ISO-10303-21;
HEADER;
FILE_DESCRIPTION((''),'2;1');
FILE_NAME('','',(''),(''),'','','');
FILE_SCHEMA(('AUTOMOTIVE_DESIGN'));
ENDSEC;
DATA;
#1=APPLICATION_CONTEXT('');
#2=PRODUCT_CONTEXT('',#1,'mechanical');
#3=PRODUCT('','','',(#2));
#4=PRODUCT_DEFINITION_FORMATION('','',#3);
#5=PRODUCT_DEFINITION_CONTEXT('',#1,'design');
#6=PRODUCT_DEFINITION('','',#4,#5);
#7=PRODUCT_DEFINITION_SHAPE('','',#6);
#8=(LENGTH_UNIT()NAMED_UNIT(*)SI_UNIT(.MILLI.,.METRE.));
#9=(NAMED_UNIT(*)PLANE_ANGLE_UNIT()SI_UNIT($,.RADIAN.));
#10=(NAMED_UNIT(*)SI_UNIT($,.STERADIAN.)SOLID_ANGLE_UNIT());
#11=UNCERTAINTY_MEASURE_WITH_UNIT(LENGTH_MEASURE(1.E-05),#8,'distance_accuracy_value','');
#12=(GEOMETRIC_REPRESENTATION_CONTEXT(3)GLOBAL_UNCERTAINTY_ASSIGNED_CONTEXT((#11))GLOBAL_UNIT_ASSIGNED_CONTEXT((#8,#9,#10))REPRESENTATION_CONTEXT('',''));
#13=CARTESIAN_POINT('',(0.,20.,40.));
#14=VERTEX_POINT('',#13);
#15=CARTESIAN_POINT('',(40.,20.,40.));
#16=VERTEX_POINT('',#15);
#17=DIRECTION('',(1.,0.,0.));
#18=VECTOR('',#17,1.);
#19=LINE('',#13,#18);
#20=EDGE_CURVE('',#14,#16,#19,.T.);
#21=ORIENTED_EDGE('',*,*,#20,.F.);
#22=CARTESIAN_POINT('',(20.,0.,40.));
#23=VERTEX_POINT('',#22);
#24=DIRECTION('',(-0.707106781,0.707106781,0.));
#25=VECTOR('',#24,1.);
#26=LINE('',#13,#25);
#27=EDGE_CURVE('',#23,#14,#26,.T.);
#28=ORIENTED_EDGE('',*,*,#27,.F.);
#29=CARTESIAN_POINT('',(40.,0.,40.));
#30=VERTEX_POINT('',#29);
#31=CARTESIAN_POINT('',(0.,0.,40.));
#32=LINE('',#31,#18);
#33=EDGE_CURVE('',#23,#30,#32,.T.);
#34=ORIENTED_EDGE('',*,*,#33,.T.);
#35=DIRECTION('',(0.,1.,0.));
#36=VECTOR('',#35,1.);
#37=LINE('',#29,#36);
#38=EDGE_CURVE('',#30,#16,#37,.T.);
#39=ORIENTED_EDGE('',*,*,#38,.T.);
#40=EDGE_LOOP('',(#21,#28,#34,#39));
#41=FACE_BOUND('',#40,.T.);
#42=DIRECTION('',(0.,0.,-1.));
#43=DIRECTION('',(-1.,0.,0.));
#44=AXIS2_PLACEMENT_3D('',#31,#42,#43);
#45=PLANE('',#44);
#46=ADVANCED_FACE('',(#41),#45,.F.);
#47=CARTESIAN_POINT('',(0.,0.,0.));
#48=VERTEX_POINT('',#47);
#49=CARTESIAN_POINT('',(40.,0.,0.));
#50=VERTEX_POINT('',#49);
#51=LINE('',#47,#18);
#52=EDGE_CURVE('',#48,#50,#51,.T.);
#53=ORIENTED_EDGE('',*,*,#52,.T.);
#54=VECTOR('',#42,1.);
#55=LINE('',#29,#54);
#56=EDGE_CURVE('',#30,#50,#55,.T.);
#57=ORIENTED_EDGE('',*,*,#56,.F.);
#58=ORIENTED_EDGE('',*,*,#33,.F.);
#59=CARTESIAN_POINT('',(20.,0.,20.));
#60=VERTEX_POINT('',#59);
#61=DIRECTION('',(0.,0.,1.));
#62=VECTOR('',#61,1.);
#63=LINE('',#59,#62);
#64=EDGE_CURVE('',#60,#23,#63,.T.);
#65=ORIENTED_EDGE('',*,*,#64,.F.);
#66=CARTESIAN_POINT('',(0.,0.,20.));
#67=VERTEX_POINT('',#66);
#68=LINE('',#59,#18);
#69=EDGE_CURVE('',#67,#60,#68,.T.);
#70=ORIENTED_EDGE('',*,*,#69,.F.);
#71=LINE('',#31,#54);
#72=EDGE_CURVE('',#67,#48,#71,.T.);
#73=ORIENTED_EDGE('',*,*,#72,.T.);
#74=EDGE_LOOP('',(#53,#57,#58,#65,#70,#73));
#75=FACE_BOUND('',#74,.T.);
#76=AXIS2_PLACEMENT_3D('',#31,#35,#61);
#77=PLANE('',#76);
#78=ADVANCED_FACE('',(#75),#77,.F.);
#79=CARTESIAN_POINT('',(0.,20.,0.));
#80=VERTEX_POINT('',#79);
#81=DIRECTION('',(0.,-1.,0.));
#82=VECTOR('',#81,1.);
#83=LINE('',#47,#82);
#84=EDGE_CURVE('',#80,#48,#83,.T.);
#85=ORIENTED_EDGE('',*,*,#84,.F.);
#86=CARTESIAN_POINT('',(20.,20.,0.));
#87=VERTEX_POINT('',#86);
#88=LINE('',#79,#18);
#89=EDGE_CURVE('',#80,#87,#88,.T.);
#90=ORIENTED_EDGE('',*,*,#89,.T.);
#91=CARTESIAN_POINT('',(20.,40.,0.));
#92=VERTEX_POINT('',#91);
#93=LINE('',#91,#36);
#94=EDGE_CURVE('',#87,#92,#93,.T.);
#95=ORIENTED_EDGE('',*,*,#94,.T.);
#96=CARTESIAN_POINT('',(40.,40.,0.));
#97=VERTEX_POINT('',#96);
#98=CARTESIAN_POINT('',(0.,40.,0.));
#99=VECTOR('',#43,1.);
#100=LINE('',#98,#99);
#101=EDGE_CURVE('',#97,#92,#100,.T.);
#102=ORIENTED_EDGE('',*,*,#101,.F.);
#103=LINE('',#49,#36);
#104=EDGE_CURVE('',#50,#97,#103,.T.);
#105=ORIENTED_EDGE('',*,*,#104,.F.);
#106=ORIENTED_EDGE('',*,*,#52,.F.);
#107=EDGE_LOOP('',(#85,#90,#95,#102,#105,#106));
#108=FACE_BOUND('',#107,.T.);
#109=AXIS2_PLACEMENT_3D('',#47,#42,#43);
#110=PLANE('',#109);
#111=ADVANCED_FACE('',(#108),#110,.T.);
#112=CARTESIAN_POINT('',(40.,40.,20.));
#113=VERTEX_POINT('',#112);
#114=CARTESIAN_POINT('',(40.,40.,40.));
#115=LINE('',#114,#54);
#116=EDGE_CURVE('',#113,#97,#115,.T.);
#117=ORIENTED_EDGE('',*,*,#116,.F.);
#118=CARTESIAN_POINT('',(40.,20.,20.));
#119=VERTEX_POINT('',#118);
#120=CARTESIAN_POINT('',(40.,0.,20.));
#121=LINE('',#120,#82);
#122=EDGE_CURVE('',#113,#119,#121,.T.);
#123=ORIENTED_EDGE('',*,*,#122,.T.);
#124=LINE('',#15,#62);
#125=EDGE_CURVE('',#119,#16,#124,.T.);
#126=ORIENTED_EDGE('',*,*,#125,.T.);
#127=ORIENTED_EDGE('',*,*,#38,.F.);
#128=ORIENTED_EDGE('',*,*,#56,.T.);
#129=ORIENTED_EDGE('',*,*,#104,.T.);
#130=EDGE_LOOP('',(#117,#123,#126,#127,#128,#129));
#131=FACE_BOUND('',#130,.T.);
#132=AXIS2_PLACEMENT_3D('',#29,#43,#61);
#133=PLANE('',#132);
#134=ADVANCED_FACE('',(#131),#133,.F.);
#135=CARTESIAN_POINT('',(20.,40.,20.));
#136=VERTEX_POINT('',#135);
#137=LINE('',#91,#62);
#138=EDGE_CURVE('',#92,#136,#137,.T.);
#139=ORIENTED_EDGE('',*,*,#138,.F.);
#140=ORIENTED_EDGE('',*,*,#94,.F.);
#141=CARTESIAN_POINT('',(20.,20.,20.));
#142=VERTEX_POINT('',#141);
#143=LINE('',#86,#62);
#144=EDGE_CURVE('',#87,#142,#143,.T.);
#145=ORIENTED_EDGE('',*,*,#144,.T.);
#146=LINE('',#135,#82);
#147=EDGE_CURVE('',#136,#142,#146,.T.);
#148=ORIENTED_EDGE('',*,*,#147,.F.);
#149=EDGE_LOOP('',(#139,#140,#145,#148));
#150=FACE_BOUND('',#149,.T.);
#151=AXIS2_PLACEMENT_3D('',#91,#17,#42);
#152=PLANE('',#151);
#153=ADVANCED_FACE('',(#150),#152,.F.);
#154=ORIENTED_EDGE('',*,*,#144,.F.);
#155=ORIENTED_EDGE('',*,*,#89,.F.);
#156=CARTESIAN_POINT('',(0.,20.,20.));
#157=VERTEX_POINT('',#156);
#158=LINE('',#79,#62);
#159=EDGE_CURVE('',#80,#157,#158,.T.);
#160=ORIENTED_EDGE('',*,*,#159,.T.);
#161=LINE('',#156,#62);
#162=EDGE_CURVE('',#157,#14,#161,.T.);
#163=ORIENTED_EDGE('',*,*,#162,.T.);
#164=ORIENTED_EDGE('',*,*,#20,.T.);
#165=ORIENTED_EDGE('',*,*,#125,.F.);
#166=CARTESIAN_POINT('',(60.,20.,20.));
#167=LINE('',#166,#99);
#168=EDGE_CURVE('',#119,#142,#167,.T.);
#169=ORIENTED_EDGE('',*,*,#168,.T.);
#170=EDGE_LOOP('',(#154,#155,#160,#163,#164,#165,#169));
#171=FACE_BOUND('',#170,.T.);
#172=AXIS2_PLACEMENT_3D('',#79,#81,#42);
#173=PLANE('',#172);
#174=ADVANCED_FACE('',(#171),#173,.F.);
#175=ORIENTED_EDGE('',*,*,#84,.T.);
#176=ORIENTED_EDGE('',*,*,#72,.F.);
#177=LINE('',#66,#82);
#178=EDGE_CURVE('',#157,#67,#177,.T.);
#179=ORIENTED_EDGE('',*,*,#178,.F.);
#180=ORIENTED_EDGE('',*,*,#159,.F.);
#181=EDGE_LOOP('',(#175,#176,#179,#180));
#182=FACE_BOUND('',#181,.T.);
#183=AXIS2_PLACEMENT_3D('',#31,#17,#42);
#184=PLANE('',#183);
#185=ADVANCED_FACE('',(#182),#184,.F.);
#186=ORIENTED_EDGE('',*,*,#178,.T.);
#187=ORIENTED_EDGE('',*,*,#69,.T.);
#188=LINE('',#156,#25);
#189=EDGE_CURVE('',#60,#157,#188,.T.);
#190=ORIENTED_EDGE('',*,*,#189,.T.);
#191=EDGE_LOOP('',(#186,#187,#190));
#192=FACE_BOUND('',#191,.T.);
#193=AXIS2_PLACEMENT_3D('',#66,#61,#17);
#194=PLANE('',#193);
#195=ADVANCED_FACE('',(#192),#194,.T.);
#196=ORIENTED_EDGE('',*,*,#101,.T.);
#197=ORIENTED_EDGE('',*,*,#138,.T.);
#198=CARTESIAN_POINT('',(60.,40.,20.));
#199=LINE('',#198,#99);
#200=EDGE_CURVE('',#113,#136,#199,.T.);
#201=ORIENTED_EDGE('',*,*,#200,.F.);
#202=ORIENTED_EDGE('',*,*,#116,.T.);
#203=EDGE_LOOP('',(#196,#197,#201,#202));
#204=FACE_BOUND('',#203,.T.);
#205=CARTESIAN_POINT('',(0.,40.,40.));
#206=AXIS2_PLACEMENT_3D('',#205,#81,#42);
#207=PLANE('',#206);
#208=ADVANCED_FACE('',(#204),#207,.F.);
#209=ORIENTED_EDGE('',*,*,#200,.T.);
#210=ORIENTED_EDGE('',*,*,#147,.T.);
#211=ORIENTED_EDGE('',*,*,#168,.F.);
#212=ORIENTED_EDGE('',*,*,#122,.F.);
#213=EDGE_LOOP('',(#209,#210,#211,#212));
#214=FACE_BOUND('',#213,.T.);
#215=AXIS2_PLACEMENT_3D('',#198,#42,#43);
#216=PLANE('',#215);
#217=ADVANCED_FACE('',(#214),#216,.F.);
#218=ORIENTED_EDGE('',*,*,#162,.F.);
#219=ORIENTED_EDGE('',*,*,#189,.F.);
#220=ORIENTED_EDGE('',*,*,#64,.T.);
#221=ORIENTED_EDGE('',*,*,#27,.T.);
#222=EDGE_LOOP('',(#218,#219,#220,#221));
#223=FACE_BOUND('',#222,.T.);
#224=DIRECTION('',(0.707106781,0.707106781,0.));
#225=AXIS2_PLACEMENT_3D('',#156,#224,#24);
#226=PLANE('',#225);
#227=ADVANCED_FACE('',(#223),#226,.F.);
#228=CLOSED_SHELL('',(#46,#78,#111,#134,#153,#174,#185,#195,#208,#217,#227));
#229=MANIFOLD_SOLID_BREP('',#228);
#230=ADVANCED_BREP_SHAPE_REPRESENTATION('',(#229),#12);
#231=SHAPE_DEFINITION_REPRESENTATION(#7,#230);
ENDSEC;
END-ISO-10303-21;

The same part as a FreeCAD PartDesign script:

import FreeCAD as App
import Part
import Sketcher
from FreeCAD import Vector
Q = App.Units.Quantity


def add_polygon(sketch, points):
    """Adds a closed chain of lines whose ends are joined by coincident constraints."""
    first, n = sketch.GeometryCount, len(points)
    for a, b in zip(points, points[1:] + points[:1]):
        sketch.addGeometry(Part.LineSegment(App.Vector(*a, 0), App.Vector(*b, 0)), False)
    for i in range(n):
        sketch.addConstraint(Sketcher.Constraint("Coincident", first + i, 2, first + (i + 1) % n, 1))

doc = App.newDocument("Part")
body = doc.addObject("PartDesign::Body", "Body")

# Sketch on XY plane
sketch1 = body.newObject("Sketcher::SketchObject", "Sketch")
sketch1.AttachmentSupport = (doc.getObject("XY_Plane"), [""])
sketch1.MapMode = "FlatFace"
add_polygon(sketch1, [(0, 40), (0, 0), (40, 0), (40, 40)])  # lines 0-3
sketch1.addConstraint(Sketcher.Constraint("Vertical", 0))
sketch1.addConstraint(Sketcher.Constraint("Horizontal", 1))
sketch1.addConstraint(Sketcher.Constraint("Vertical", 2))
sketch1.addConstraint(Sketcher.Constraint("Horizontal", 3))
sketch1.addConstraint(Sketcher.Constraint("Coincident", 0, 2, -1, 1))
sketch1.addConstraint(Sketcher.Constraint("Equal", 3, 0))
sketch1.addConstraint(Sketcher.Constraint("DistanceX", 1, 1, 1, 2, Q("40 mm")))
pad1 = body.newObject("PartDesign::Pad", "Pad")
pad1.Profile = sketch1
pad1.Length = 40

# Sketch on XY plane
sketch2 = body.newObject("Sketcher::SketchObject", "Sketch001")
sketch2.AttachmentSupport = (doc.getObject("XY_Plane"), [""])
sketch2.MapMode = "FlatFace"
sketch2.AttachmentOffset = App.Placement(Vector(0, 0, 40), App.Rotation())
add_polygon(sketch2, [(0, 40), (0, 20), (20, 20), (20, 40)])  # lines 0-3
sketch2.addConstraint(Sketcher.Constraint("Vertical", 0))
sketch2.addConstraint(Sketcher.Constraint("Horizontal", 1))
sketch2.addConstraint(Sketcher.Constraint("Vertical", 2))
sketch2.addConstraint(Sketcher.Constraint("Horizontal", 3))
sketch2.addConstraint(Sketcher.Constraint("PointOnObject", 0, 2, -2))
sketch2.addConstraint(Sketcher.Constraint("Equal", 3, 0))
sketch2.addConstraint(Sketcher.Constraint("DistanceX", 1, 1, 1, 2, Q("20 mm")))
sketch2.addConstraint(Sketcher.Constraint("DistanceY", -1, 1, 0, 2, Q("20 mm")))
pocket1 = body.newObject("PartDesign::Pocket", "Pocket")
pocket1.Profile = sketch2
pocket1.Length = 40

# Sketch on YZ plane
sketch3 = body.newObject("Sketcher::SketchObject", "Sketch002")
sketch3.AttachmentSupport = (doc.getObject("YZ_Plane"), [""])
sketch3.MapMode = "FlatFace"
sketch3.AttachmentOffset = App.Placement(Vector(0, 0, 20), App.Rotation())
add_polygon(sketch3, [(40, 20), (20, 20), (20, 40), (40, 40)])  # lines 0-3
sketch3.addConstraint(Sketcher.Constraint("Horizontal", 0))
sketch3.addConstraint(Sketcher.Constraint("Vertical", 1))
sketch3.addConstraint(Sketcher.Constraint("Horizontal", 2))
sketch3.addConstraint(Sketcher.Constraint("Vertical", 3))
sketch3.addConstraint(Sketcher.Constraint("Equal", 2, 1))
sketch3.addConstraint(Sketcher.Constraint("DistanceX", 0, 2, 0, 1, Q("20 mm")))
sketch3.addConstraint(Sketcher.Constraint("DistanceX", -1, 1, 0, 2, Q("20 mm")))
sketch3.addConstraint(Sketcher.Constraint("DistanceY", -1, 1, 0, 2, Q("20 mm")))
pocket2 = body.newObject("PartDesign::Pocket", "Pocket001")
pocket2.Profile = sketch3
pocket2.Length = 40
pocket2.Reversed = True

# Sketch on XY plane
sketch4 = body.newObject("Sketcher::SketchObject", "Sketch003")
sketch4.AttachmentSupport = (doc.getObject("XY_Plane"), [""])
sketch4.MapMode = "FlatFace"
sketch4.AttachmentOffset = App.Placement(Vector(0, 0, 40), App.Rotation())
add_polygon(sketch4, [(20, 0), (0, 20), (0, 0)])  # lines 0-2
sketch4.addConstraint(Sketcher.Constraint("Vertical", 1))
sketch4.addConstraint(Sketcher.Constraint("Horizontal", 2))
sketch4.addConstraint(Sketcher.Constraint("Coincident", 1, 2, -1, 1))
sketch4.addConstraint(Sketcher.Constraint("Equal", 2, 1))
sketch4.addConstraint(Sketcher.Constraint("DistanceX", 2, 1, 2, 2, Q("20 mm")))
pocket3 = body.newObject("PartDesign::Pocket", "Pocket002")
pocket3.Profile = sketch4
pocket3.Length = 20

doc.recompute()
